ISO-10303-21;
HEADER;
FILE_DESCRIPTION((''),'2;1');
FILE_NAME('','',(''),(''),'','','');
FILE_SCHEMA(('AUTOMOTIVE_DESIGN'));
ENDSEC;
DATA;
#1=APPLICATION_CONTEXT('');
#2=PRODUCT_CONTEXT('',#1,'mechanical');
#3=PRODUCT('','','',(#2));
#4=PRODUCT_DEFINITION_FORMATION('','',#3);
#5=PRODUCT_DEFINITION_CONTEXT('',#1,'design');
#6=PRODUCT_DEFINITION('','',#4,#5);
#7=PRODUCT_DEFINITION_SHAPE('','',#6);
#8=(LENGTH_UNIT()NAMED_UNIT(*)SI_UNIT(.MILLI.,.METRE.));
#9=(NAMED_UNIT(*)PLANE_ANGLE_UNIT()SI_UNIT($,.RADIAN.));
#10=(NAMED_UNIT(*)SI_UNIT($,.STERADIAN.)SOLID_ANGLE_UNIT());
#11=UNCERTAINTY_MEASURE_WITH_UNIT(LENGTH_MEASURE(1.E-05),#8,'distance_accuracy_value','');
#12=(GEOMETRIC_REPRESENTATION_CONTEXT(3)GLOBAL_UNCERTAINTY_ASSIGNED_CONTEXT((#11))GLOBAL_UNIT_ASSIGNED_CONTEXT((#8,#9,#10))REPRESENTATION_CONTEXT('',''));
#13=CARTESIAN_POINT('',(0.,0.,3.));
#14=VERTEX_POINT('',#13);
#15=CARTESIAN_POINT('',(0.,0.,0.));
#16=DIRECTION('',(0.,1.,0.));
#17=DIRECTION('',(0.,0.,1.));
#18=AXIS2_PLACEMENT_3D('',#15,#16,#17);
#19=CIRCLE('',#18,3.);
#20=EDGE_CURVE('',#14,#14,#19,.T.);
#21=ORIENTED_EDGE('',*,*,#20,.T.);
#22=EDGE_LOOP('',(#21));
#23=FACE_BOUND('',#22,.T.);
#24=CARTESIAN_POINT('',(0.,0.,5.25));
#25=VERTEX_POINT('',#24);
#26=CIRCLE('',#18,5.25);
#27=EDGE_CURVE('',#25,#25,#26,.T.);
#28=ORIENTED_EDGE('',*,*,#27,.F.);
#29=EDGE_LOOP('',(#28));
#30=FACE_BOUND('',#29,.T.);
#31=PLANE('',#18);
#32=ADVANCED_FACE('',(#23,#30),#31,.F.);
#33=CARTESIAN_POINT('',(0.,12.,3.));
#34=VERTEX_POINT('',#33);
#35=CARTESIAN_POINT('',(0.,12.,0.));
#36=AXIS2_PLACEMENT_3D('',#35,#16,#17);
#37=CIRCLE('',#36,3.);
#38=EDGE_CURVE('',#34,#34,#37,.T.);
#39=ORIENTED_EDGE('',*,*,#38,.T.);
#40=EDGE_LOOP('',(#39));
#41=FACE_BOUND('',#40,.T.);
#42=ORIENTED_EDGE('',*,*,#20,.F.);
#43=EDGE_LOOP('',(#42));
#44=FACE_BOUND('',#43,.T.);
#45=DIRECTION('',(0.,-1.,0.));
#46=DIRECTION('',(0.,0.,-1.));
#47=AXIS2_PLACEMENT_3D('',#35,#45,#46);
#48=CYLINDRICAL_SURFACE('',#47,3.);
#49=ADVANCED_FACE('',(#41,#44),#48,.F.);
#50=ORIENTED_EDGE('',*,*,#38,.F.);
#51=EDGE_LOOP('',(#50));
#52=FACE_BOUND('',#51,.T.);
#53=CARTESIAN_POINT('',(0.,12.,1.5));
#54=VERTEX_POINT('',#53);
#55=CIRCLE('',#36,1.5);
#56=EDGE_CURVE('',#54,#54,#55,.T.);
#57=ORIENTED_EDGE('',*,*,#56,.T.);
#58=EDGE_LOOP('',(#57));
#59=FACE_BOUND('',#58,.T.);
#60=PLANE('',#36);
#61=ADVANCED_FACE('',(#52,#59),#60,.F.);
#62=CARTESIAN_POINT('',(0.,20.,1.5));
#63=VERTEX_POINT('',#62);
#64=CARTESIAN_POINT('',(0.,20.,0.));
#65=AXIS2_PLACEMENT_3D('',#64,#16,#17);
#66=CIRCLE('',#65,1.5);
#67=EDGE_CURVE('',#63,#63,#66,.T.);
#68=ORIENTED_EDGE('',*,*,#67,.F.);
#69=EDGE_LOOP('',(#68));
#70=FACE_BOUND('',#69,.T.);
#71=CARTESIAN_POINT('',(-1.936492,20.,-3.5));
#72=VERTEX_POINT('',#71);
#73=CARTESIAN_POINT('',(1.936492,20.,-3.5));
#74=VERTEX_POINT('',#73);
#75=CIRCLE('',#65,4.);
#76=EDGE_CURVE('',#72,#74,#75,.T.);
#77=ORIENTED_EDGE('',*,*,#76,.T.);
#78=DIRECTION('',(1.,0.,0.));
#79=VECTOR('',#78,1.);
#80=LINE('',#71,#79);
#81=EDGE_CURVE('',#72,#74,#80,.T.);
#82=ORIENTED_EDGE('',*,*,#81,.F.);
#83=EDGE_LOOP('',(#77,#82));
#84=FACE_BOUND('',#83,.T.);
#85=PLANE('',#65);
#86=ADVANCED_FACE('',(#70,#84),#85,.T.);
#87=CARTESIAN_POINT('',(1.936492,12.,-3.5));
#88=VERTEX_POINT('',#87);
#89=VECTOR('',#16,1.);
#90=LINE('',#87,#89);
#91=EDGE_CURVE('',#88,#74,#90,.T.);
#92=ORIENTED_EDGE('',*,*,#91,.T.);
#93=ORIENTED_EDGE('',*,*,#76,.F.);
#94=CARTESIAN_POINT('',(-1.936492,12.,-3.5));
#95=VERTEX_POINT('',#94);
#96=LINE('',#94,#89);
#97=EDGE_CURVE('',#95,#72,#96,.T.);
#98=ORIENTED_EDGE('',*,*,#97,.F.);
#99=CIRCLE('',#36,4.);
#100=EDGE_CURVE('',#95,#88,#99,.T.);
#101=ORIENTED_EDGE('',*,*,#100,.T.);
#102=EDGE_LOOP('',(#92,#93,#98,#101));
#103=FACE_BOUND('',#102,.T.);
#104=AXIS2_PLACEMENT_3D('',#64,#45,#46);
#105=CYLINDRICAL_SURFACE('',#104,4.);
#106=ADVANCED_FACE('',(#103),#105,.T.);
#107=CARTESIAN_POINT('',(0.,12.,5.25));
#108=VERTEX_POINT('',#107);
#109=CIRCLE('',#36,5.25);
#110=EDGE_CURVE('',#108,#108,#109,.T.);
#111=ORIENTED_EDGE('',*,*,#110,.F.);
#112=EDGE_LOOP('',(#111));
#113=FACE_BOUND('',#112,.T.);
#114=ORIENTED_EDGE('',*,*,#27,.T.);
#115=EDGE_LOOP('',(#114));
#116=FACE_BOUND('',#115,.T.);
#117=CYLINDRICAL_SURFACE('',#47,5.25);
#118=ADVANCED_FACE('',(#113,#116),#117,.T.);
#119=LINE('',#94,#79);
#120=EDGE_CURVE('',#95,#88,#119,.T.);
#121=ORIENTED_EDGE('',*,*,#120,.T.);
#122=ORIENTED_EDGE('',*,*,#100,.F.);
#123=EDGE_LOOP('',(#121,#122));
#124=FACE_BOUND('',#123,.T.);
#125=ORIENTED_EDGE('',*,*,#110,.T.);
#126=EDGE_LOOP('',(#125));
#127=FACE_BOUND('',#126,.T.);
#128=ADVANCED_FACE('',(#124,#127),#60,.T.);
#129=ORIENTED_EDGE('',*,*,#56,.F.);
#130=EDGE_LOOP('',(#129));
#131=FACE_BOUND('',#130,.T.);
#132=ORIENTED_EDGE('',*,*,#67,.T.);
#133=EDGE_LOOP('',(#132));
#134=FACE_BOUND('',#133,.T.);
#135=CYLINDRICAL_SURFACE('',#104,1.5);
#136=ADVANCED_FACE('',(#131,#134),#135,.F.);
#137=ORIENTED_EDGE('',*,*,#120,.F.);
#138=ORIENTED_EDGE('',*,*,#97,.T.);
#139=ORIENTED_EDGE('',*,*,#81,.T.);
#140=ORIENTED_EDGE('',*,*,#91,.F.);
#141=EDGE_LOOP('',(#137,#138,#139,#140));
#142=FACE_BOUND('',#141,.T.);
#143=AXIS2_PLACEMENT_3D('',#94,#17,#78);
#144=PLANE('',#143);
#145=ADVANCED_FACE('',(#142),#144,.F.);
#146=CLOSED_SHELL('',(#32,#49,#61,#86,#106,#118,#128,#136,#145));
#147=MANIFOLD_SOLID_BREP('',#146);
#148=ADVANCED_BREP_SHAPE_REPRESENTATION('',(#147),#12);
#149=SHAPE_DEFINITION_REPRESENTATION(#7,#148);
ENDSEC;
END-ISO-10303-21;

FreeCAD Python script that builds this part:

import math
import FreeCAD as App
import Part
import Sketcher

V = App.Vector

doc = App.newDocument("Part")
body = doc.addObject("PartDesign::Body", "Body")

# Sketch on XZ plane
sketch1 = body.newObject("Sketcher::SketchObject", "Sketch")
sketch1.AttachmentSupport = (doc.getObject("XZ_Plane"), [""])
sketch1.MapMode = "FlatFace"
sketch1.addGeometry([
    Part.Circle(V(0, 0, 0), V(0, 0, 1), 5.2),
    Part.Circle(V(0, 0, 0), V(0, 0, 1), 3),
], False)
sketch1.addConstraint([
    Sketcher.Constraint("Coincident", 0, 3, -1, 1),
    Sketcher.Constraint("Coincident", 1, 3, -1, 1),
    Sketcher.Constraint("Diameter", 1, 6.0),
    Sketcher.Constraint("Diameter", 0, 10.5),
])
pad1 = body.newObject("PartDesign::Pad", "Pad")
pad1.Profile = sketch1
pad1.Length = 12
pad1.Reversed = True

# Sketch on XZ plane
sketch2 = body.newObject("Sketcher::SketchObject", "Sketch001")
sketch2.AttachmentSupport = (doc.getObject("XZ_Plane"), [""])
sketch2.MapMode = "FlatFace"
sketch2.AttachmentOffset = App.Placement(V(0, 0, -12), App.Rotation())
sketch2.addGeometry([
    Part.Circle(V(0, 0, 0), V(0, 0, 1), 4),
    Part.Circle(V(0, 0, 0), V(0, 0, 1), 1.5),
], False)
sketch2.addConstraint([
    Sketcher.Constraint("Coincident", 0, 3, -1, 1),
    Sketcher.Constraint("Coincident", 1, 3, -1, 1),
    Sketcher.Constraint("Diameter", 0, 8.0),
    Sketcher.Constraint("Diameter", 1, 3.0),
])
pad2 = body.newObject("PartDesign::Pad", "Pad001")
pad2.Profile = sketch2
pad2.Length = 8
pad2.Reversed = True

# Sketch on XZ plane
sketch3 = body.newObject("Sketcher::SketchObject", "Sketch002")
sketch3.AttachmentSupport = (doc.getObject("XZ_Plane"), [""])
sketch3.MapMode = "FlatFace"
sketch3.AttachmentOffset = App.Placement(V(0, 0, -12), App.Rotation())
sketch3.addGeometry([
    Part.LineSegment(V(-1.9, -3.5, 0), V(1.9, -3.5, 0)),
    Part.ArcOfCircle(Part.Circle(V(0, 0, 0), V(0, 0, 1), 4), math.radians(-119), math.radians(-61)),
], False)
sketch3.addConstraint([
    Sketcher.Constraint("Coincident", 0, 1, 1, 1),
    Sketcher.Constraint("Coincident", 1, 2, 0, 2),
    Sketcher.Constraint("Horizontal", 0),
    Sketcher.Constraint("Coincident", 1, 3, -1, 1),
    Sketcher.Constraint("Radius", 1, 4.0),
    Sketcher.Constraint("DistanceY", 0, 1, -1, 1, 3.5),
])
pocket1 = body.newObject("PartDesign::Pocket", "Pocket")
pocket1.Profile = sketch3
pocket1.Length = 8

doc.recompute()
